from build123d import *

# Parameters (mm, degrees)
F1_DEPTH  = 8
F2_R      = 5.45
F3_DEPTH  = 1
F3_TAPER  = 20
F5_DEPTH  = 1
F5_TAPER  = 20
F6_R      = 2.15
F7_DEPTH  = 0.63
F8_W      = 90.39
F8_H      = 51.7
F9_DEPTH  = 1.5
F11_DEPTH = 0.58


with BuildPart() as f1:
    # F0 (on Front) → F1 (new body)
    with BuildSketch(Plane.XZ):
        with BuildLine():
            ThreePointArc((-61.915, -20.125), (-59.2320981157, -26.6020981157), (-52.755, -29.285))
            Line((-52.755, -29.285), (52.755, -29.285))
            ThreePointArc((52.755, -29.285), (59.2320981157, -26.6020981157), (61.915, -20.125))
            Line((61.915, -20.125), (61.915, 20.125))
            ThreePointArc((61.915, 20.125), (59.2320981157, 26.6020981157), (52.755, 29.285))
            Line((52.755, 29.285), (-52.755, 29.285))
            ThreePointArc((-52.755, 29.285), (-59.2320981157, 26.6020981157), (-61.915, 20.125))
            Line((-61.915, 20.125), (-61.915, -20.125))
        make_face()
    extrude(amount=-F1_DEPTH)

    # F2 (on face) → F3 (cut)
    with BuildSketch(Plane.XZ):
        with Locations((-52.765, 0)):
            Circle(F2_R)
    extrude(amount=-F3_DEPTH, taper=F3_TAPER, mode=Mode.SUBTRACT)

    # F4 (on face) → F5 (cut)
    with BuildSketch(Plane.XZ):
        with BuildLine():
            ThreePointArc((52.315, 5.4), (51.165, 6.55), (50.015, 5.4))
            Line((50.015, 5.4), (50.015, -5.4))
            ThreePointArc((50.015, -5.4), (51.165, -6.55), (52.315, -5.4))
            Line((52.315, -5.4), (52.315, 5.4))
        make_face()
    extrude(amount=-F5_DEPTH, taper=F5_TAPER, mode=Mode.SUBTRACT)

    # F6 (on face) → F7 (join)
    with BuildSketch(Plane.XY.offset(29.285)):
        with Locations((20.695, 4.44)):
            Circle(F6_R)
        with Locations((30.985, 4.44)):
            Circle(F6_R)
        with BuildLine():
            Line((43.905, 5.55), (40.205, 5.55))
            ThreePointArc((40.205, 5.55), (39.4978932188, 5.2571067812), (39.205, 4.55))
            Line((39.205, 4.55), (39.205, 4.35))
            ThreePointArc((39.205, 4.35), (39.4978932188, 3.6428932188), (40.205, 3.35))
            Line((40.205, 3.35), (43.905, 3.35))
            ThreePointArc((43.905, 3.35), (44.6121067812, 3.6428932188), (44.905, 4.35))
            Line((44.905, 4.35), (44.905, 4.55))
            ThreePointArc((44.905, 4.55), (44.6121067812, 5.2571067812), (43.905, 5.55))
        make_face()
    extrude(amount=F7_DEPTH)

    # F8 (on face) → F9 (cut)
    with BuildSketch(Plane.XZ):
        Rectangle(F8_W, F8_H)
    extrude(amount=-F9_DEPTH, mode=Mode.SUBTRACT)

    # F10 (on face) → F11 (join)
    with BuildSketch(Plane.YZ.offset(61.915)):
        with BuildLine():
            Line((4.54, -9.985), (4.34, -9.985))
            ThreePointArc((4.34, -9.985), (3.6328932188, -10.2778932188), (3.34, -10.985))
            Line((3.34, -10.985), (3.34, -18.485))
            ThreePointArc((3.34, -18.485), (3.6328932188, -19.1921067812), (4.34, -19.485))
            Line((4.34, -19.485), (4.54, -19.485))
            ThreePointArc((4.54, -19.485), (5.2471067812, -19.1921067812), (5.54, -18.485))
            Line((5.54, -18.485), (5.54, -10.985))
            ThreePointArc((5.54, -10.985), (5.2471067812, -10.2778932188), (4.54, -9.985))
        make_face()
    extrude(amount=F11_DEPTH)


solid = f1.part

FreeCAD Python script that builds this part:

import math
import FreeCAD as App
import Part
import Sketcher


def add_polygon(sketch, points):
    """Adds a closed chain of lines whose ends are joined by coincident constraints."""
    first, n = sketch.GeometryCount, len(points)
    for a, b in zip(points, points[1:] + points[:1]):
        sketch.addGeometry(Part.LineSegment(App.Vector(*a, 0), App.Vector(*b, 0)), False)
    for i in range(n):
        sketch.addConstraint(Sketcher.Constraint("Coincident", first + i, 2, first + (i + 1) % n, 1))

doc = App.newDocument("Part")
params = doc.addObject("Spreadsheet::Sheet", "Params")
for row, (alias, value) in enumerate([
    ("sketch1_radius", "9.16 mm"),
    ("sketch1_width", "105.51 mm"),
    ("sketch1_height", "40.25 mm"),
    ("pad1_length", "8 mm"),
    ("sketch2_diameter", "10.9 mm"),
    ("pocket1_length", "1 mm"),
    ("pocket1_taper", "-20 deg"),
    ("sketch3_radius", "1.15 mm"),
    ("sketch3_height", "10.8 mm"),
    ("pocket2_length", "1 mm"),
    ("pocket2_taper", "-20 deg"),
    ("sketch4_radius", "1 mm"),
    ("sketch4_diameter", "4.3 mm"),
    ("sketch4_width", "3.7 mm"),
    ("sketch4_height", "0.2 mm"),
    ("pad2_length", "0.63 mm"),
    ("sketch5_height", "51.7 mm"),
    ("sketch5_width", "90.39 mm"),
    ("pocket3_length", "1.5 mm"),
    ("sketch6_radius", "1 mm"),
    ("sketch6_width", "0.2 mm"),
    ("sketch6_height", "7.5 mm"),
    ("pad3_length", "0.58 mm"),
], start=1):
    params.set(f"A{row}", alias)
    params.set(f"B{row}", "=" + value)
    params.setAlias(f"B{row}", alias)

body = doc.addObject("PartDesign::Body", "Body")

sketch1 = doc.addObject("Sketcher::SketchObject", "Sketch")
body.addObject(sketch1)
sketch1.AttachmentSupport = (doc.XZ_Plane, [""])
sketch1.MapMode = "FlatFace"
sketch1.addGeometry(Part.ArcOfCircle(Part.Circle(App.Vector(-53, -20, 0), App.Vector(0, 0, 1), 9), math.radians(180), math.radians(270)), False)
sketch1.addGeometry(Part.LineSegment(App.Vector(-53, -29, 0), App.Vector(53, -29, 0)), False)
sketch1.addGeometry(Part.ArcOfCircle(Part.Circle(App.Vector(53, -20, 0), App.Vector(0, 0, 1), 9), math.radians(-90), math.radians(0)), False)
sketch1.addGeometry(Part.LineSegment(App.Vector(62, -20, 0), App.Vector(62, 20, 0)), False)
sketch1.addGeometry(Part.ArcOfCircle(Part.Circle(App.Vector(53, 20, 0), App.Vector(0, 0, 1), 9), math.radians(0), math.radians(90)), False)
sketch1.addGeometry(Part.LineSegment(App.Vector(53, 29, 0), App.Vector(-53, 29, 0)), False)
sketch1.addGeometry(Part.ArcOfCircle(Part.Circle(App.Vector(-53, 20, 0), App.Vector(0, 0, 1), 9), math.radians(90), math.radians(180)), False)
sketch1.addGeometry(Part.LineSegment(App.Vector(-62, 20, 0), App.Vector(-62, -20, 0)), False)
sketch1.addConstraint(Sketcher.Constraint("Tangent", 0, 2, 1, 1))
sketch1.addConstraint(Sketcher.Constraint("Tangent", 1, 2, 2, 1))
sketch1.addConstraint(Sketcher.Constraint("Tangent", 2, 2, 3, 1))
sketch1.addConstraint(Sketcher.Constraint("Tangent", 3, 2, 4, 1))
sketch1.addConstraint(Sketcher.Constraint("Tangent", 4, 2, 5, 1))
sketch1.addConstraint(Sketcher.Constraint("Tangent", 5, 2, 6, 1))
sketch1.addConstraint(Sketcher.Constraint("Tangent", 6, 2, 7, 1))
sketch1.addConstraint(Sketcher.Constraint("Tangent", 7, 2, 0, 1))
sketch1.addConstraint(Sketcher.Constraint("Horizontal", 1))
sketch1.addConstraint(Sketcher.Constraint("Vertical", 3))
sketch1.addConstraint(Sketcher.Constraint("Horizontal", 5))
sketch1.addConstraint(Sketcher.Constraint("Vertical", 7))
sketch1.addConstraint(Sketcher.Constraint("Equal", 0, 2))
sketch1.addConstraint(Sketcher.Constraint("Equal", 2, 4))
sketch1.addConstraint(Sketcher.Constraint("Equal", 4, 6))
sketch1.addConstraint(Sketcher.Constraint("Symmetric", 0, 3, 4, 3, -1, 1))
sketch1.addConstraint(Sketcher.Constraint("Radius", 0, 9.16))
sketch1.addConstraint(Sketcher.Constraint("DistanceX", 1, 1, 1, 2, 105.51))
sketch1.addConstraint(Sketcher.Constraint("DistanceY", 3, 1, 3, 2, 40.25))
sketch1.setExpression("Constraints[16]", "Params.sketch1_radius")
sketch1.setExpression("Constraints[17]", "Params.sketch1_width")
sketch1.setExpression("Constraints[18]", "Params.sketch1_height")
pad1 = doc.addObject("PartDesign::Pad", "Pad")
body.addObject(pad1)
pad1.Profile = sketch1
pad1.setExpression("Length", "Params.pad1_length")
pad1.Reversed = True

sketch2 = doc.addObject("Sketcher::SketchObject", "Sketch001")
body.addObject(sketch2)
sketch2.AttachmentSupport = (doc.XZ_Plane, [""])
sketch2.MapMode = "FlatFace"
sketch2.addGeometry(Part.Circle(App.Vector(-53, 0, 0), App.Vector(0, 0, 1), 5), False)
sketch2.addConstraint(Sketcher.Constraint("PointOnObject", 0, 3, -1))
sketch2.addConstraint(Sketcher.Constraint("Diameter", 0, 10.9))
sketch2.addConstraint(Sketcher.Constraint("DistanceX", 0, 3, -1, 1, 52.765))
sketch2.setExpression("Constraints[1]", "Params.sketch2_diameter")
pocket1 = doc.addObject("PartDesign::Pocket", "Pocket")
body.addObject(pocket1)
pocket1.Profile = sketch2
pocket1.setExpression("Length", "Params.pocket1_length")
pocket1.setExpression("TaperAngle", "Params.pocket1_taper")

sketch3 = doc.addObject("Sketcher::SketchObject", "Sketch002")
body.addObject(sketch3)
sketch3.AttachmentSupport = (doc.XZ_Plane, [""])
sketch3.MapMode = "FlatFace"
sketch3.addGeometry(Part.ArcOfCircle(Part.Circle(App.Vector(51.2, 5.4, 0), App.Vector(0, 0, 1), 1.1), math.radians(0), math.radians(180)), False)
sketch3.addGeometry(Part.LineSegment(App.Vector(50, 5.4, 0), App.Vector(50, -5.4, 0)), False)
sketch3.addGeometry(Part.ArcOfCircle(Part.Circle(App.Vector(51.2, -5.4, 0), App.Vector(0, 0, 1), 1.1), math.radians(180), math.radians(360)), False)
sketch3.addGeometry(Part.LineSegment(App.Vector(52.3, -5.4, 0), App.Vector(52.3, 5.4, 0)), False)
sketch3.addConstraint(Sketcher.Constraint("Tangent", 0, 2, 1, 1))
sketch3.addConstraint(Sketcher.Constraint("Tangent", 1, 2, 2, 1))
sketch3.addConstraint(Sketcher.Constraint("Tangent", 2, 2, 3, 1))
sketch3.addConstraint(Sketcher.Constraint("Tangent", 3, 2, 0, 1))
sketch3.addConstraint(Sketcher.Constraint("Vertical", 1))
sketch3.addConstraint(Sketcher.Constraint("Vertical", 3))
sketch3.addConstraint(Sketcher.Constraint("Radius", 0, 1.15))
sketch3.addConstraint(Sketcher.Constraint("DistanceY", 1, 2, 1, 1, 10.8))
sketch3.addConstraint(Sketcher.Constraint("DistanceY", -1, 1, 0, 3, 5.4))
sketch3.addConstraint(Sketcher.Constraint("DistanceX", -1, 1, 0, 3, 51.165))
sketch3.setExpression("Constraints[6]", "Params.sketch3_radius")
sketch3.setExpression("Constraints[7]", "Params.sketch3_height")
pocket2 = doc.addObject("PartDesign::Pocket", "Pocket001")
body.addObject(pocket2)
pocket2.Profile = sketch3
pocket2.setExpression("Length", "Params.pocket2_length")
pocket2.setExpression("TaperAngle", "Params.pocket2_taper")

sketch4 = doc.addObject("Sketcher::SketchObject", "Sketch003")
body.addObject(sketch4)
sketch4.AttachmentSupport = (doc.XY_Plane, [""])
sketch4.MapMode = "FlatFace"
sketch4.AttachmentOffset = App.Placement(App.Vector(0, 0, 29.285), App.Rotation())
sketch4.addGeometry(Part.Circle(App.Vector(20.7, 4.44, 0), App.Vector(0, 0, 1), 2.15), False)
sketch4.addGeometry(Part.Circle(App.Vector(30.98, 4.44, 0), App.Vector(0, 0, 1), 2.15), False)
sketch4.addGeometry(Part.LineSegment(App.Vector(43.91, 5.55, 0), App.Vector(40.2, 5.55, 0)), False)
sketch4.addGeometry(Part.ArcOfCircle(Part.Circle(App.Vector(40.2, 4.55, 0), App.Vector(0, 0, 1), 1), math.radians(90), math.radians(180)), False)
sketch4.addGeometry(Part.LineSegment(App.Vector(39.2, 4.55, 0), App.Vector(39.2, 4.35, 0)), False)
sketch4.addGeometry(Part.ArcOfCircle(Part.Circle(App.Vector(40.2, 4.35, 0), App.Vector(0, 0, 1), 1), math.radians(180), math.radians(270)), False)
sketch4.addGeometry(Part.LineSegment(App.Vector(40.2, 3.35, 0), App.Vector(43.91, 3.35, 0)), False)
sketch4.addGeometry(Part.ArcOfCircle(Part.Circle(App.Vector(43.91, 4.35, 0), App.Vector(0, 0, 1), 1), math.radians(-90), math.radians(0)), False)
sketch4.addGeometry(Part.LineSegment(App.Vector(44.91, 4.35, 0), App.Vector(44.91, 4.55, 0)), False)
sketch4.addGeometry(Part.ArcOfCircle(Part.Circle(App.Vector(43.91, 4.55, 0), App.Vector(0, 0, 1), 1), math.radians(0), math.radians(90)), False)
sketch4.addConstraint(Sketcher.Constraint("Tangent", 2, 2, 3, 1))
sketch4.addConstraint(Sketcher.Constraint("Tangent", 3, 2, 4, 1))
sketch4.addConstraint(Sketcher.Constraint("Tangent", 4, 2, 5, 1))
sketch4.addConstraint(Sketcher.Constraint("Tangent", 5, 2, 6, 1))
sketch4.addConstraint(Sketcher.Constraint("Tangent", 6, 2, 7, 1))
sketch4.addConstraint(Sketcher.Constraint("Tangent", 7, 2, 8, 1))
sketch4.addConstraint(Sketcher.Constraint("Tangent", 8, 2, 9, 1))
sketch4.addConstraint(Sketcher.Constraint("Tangent", 9, 2, 2, 1))
sketch4.addConstraint(Sketcher.Constraint("Horizontal", 2))
sketch4.addConstraint(Sketcher.Constraint("Vertical", 4))
sketch4.addConstraint(Sketcher.Constraint("Horizontal", 6))
sketch4.addConstraint(Sketcher.Constraint("Vertical", 8))
sketch4.addConstraint(Sketcher.Constraint("Equal", 0, 1))
sketch4.addConstraint(Sketcher.Constraint("Equal", 3, 5))
sketch4.addConstraint(Sketcher.Constraint("Equal", 5, 7))
sketch4.addConstraint(Sketcher.Constraint("Equal", 7, 9))
sketch4.addConstraint(Sketcher.Constraint("Horizontal", 0, 3, 1, 3))
sketch4.addConstraint(Sketcher.Constraint("Radius", 3, 1.0))
sketch4.addConstraint(Sketcher.Constraint("Diameter", 0, 4.3))
sketch4.addConstraint(Sketcher.Constraint("DistanceX", 2, 2, 2, 1, 3.7))
sketch4.addConstraint(Sketcher.Constraint("DistanceY", 4, 2, 4, 1, 0.2))
sketch4.addConstraint(Sketcher.Constraint("DistanceY", -1, 1, 0, 3, 4.44))
sketch4.addConstraint(Sketcher.Constraint("DistanceY", -1, 1, 3, 3, 4.55))
sketch4.addConstraint(Sketcher.Constraint("DistanceX", 0, 3, 1, 3, 10.29))
sketch4.addConstraint(Sketcher.Constraint("DistanceX", 1, 3, 3, 3, 9.22))
sketch4.addConstraint(Sketcher.Constraint("DistanceX", -1, 1, 0, 3, 20.695))
sketch4.setExpression("Constraints[17]", "Params.sketch4_radius")
sketch4.setExpression("Constraints[18]", "Params.sketch4_diameter")
sketch4.setExpression("Constraints[19]", "Params.sketch4_width")
sketch4.setExpression("Constraints[20]", "Params.sketch4_height")
pad2 = doc.addObject("PartDesign::Pad", "Pad001")
body.addObject(pad2)
pad2.Profile = sketch4
pad2.setExpression("Length", "Params.pad2_length")

sketch5 = doc.addObject("Sketcher::SketchObject", "Sketch004")
body.addObject(sketch5)
sketch5.AttachmentSupport = (doc.XZ_Plane, [""])
sketch5.MapMode = "FlatFace"
add_polygon(sketch5, [(-45, 26), (-45, -26), (45, -26), (45, 26)])
sketch5.addConstraint(Sketcher.Constraint("Vertical", 0))
sketch5.addConstraint(Sketcher.Constraint("Horizontal", 1))
sketch5.addConstraint(Sketcher.Constraint("Vertical", 2))
sketch5.addConstraint(Sketcher.Constraint("Horizontal", 3))
sketch5.addConstraint(Sketcher.Constraint("Symmetric", 0, 2, 2, 2, -1, 1))
sketch5.addConstraint(Sketcher.Constraint("DistanceY", 0, 2, 0, 1, 51.7))
sketch5.addConstraint(Sketcher.Constraint("DistanceX", 1, 1, 1, 2, 90.39))
sketch5.setExpression("Constraints[9]", "Params.sketch5_height")
sketch5.setExpression("Constraints[10]", "Params.sketch5_width")
pocket3 = doc.addObject("PartDesign::Pocket", "Pocket002")
body.addObject(pocket3)
pocket3.Profile = sketch5
pocket3.setExpression("Length", "Params.pocket3_length")

sketch6 = doc.addObject("Sketcher::SketchObject", "Sketch005")
body.addObject(sketch6)
sketch6.AttachmentSupport = (doc.YZ_Plane, [""])
sketch6.MapMode = "FlatFace"
sketch6.AttachmentOffset = App.Placement(App.Vector(0, 0, 61.915), App.Rotation())
sketch6.addGeometry(Part.LineSegment(App.Vector(4.54, -9.98, 0), App.Vector(4.34, -9.98, 0)), False)
sketch6.addGeometry(Part.ArcOfCircle(Part.Circle(App.Vector(4.34, -10.98, 0), App.Vector(0, 0, 1), 1), math.radians(90), math.radians(180)), False)
sketch6.addGeometry(Part.LineSegment(App.Vector(3.34, -10.98, 0), App.Vector(3.34, -18.48, 0)), False)
sketch6.addGeometry(Part.ArcOfCircle(Part.Circle(App.Vector(4.34, -18.48, 0), App.Vector(0, 0, 1), 1), math.radians(180), math.radians(270)), False)
sketch6.addGeometry(Part.LineSegment(App.Vector(4.34, -19.48, 0), App.Vector(4.54, -19.48, 0)), False)
sketch6.addGeometry(Part.ArcOfCircle(Part.Circle(App.Vector(4.54, -18.48, 0), App.Vector(0, 0, 1), 1), math.radians(-90), math.radians(0)), False)
sketch6.addGeometry(Part.LineSegment(App.Vector(5.54, -18.48, 0), App.Vector(5.54, -10.98, 0)), False)
sketch6.addGeometry(Part.ArcOfCircle(Part.Circle(App.Vector(4.54, -10.98, 0), App.Vector(0, 0, 1), 1), math.radians(0), math.radians(90)), False)
sketch6.addConstraint(Sketcher.Constraint("Tangent", 0, 2, 1, 1))
sketch6.addConstraint(Sketcher.Constraint("Tangent", 1, 2, 2, 1))
sketch6.addConstraint(Sketcher.Constraint("Tangent", 2, 2, 3, 1))
sketch6.addConstraint(Sketcher.Constraint("Tangent", 3, 2, 4, 1))
sketch6.addConstraint(Sketcher.Constraint("Tangent", 4, 2, 5, 1))
sketch6.addConstraint(Sketcher.Constraint("Tangent", 5, 2, 6, 1))
sketch6.addConstraint(Sketcher.Constraint("Tangent", 6, 2, 7, 1))
sketch6.addConstraint(Sketcher.Constraint("Tangent", 7, 2, 0, 1))
sketch6.addConstraint(Sketcher.Constraint("Horizontal", 0))
sketch6.addConstraint(Sketcher.Constraint("Vertical", 2))
sketch6.addConstraint(Sketcher.Constraint("Horizontal", 4))
sketch6.addConstraint(Sketcher.Constraint("Vertical", 6))
sketch6.addConstraint(Sketcher.Constraint("Equal", 1, 3))
sketch6.addConstraint(Sketcher.Constraint("Equal", 3, 5))
sketch6.addConstraint(Sketcher.Constraint("Equal", 5, 7))
sketch6.addConstraint(Sketcher.Constraint("Radius", 1, 1.0))
sketch6.addConstraint(Sketcher.Constraint("DistanceX", 0, 2, 0, 1, 0.2))
sketch6.addConstraint(Sketcher.Constraint("DistanceY", 2, 2, 2, 1, 7.5))
sketch6.addConstraint(Sketcher.Constraint("DistanceX", -1, 1, 1, 3, 4.34))
sketch6.addConstraint(Sketcher.Constraint("DistanceY", 1, 3, -1, 1, 10.985))
sketch6.setExpression("Constraints[15]", "Params.sketch6_radius")
sketch6.setExpression("Constraints[16]", "Params.sketch6_width")
sketch6.setExpression("Constraints[17]", "Params.sketch6_height")
pad3 = doc.addObject("PartDesign::Pad", "Pad002")
body.addObject(pad3)
pad3.Profile = sketch6
pad3.setExpression("Length", "Params.pad3_length")

doc.recompute()
